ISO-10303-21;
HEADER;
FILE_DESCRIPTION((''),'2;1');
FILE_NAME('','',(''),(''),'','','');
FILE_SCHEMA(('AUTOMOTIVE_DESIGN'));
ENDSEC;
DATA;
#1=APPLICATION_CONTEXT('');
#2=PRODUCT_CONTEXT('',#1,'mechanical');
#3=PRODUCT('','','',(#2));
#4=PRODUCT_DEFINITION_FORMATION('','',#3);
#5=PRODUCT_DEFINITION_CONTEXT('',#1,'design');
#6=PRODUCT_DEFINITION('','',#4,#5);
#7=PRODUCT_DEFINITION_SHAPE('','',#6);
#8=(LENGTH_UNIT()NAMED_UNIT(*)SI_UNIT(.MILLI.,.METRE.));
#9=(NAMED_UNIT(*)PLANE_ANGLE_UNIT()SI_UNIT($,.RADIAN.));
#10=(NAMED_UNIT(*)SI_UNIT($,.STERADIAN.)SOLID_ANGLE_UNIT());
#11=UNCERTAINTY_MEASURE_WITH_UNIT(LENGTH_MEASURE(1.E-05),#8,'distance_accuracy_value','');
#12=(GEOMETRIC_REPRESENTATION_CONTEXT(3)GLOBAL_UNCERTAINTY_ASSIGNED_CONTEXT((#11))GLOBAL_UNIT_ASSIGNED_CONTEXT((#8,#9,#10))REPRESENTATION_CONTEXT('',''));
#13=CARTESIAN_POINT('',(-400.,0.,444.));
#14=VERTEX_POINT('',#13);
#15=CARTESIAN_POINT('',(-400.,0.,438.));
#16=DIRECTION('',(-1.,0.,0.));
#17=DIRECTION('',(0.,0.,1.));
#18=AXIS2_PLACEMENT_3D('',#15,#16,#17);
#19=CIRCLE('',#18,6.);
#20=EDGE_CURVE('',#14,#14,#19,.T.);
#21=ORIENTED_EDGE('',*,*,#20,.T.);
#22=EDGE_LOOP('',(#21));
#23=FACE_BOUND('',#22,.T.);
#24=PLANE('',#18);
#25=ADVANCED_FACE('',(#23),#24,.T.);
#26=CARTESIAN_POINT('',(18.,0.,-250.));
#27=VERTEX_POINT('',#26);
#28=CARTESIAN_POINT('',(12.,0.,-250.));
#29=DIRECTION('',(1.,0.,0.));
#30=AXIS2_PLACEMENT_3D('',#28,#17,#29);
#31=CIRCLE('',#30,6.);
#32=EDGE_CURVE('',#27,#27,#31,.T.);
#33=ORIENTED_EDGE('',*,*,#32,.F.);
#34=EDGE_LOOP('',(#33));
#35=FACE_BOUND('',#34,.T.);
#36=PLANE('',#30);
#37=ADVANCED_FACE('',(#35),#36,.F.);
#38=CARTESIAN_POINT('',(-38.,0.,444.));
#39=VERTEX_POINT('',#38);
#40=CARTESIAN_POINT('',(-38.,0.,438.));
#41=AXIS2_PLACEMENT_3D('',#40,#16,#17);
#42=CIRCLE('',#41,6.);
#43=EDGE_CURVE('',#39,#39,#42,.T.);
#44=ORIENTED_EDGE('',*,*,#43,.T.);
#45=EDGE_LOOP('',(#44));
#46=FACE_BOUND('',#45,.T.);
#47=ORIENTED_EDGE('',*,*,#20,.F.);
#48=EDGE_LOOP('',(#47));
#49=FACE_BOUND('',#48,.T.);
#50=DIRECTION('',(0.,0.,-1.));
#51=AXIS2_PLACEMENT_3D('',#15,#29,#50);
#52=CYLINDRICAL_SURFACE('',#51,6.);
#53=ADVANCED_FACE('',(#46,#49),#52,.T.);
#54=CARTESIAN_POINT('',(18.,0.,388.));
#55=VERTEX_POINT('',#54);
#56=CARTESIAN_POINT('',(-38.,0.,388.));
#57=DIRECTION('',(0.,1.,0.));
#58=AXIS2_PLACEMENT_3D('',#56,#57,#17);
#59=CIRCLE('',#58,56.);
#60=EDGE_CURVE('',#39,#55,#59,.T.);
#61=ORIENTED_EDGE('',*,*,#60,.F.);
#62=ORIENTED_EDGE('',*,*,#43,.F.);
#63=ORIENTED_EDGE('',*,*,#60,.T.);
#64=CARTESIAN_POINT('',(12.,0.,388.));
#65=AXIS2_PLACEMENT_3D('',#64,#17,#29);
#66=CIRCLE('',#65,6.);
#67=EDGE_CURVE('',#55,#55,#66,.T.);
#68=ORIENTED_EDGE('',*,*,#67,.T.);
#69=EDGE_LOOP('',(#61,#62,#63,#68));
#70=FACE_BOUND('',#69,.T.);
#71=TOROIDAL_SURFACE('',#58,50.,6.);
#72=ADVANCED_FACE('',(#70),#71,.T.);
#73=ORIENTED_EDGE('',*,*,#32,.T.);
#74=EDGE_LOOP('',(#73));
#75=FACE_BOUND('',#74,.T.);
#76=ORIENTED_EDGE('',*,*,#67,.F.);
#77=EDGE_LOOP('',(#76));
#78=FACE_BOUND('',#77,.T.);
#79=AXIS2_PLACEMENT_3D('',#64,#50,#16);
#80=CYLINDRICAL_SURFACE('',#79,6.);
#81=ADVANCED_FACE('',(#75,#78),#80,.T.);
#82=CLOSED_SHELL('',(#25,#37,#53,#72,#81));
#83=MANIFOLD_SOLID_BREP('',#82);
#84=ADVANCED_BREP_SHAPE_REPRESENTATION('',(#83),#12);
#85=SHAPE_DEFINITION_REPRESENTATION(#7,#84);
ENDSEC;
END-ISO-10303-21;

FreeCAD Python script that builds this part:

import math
import FreeCAD as App
import Part
import Sketcher

doc = App.newDocument("Part")
params = doc.addObject("Spreadsheet::Sheet", "Params")
for row, (alias, value) in enumerate([
    ("sketch1_diameter", "12 mm"),
    ("sketch2_radius", "50 mm"),
    ("sketch2_width", "362 mm"),
    ("sketch2_height", "638 mm"),
], start=1):
    params.set(f"A{row}", alias)
    params.set(f"B{row}", "=" + value)
    params.setAlias(f"B{row}", alias)

body = doc.addObject("PartDesign::Body", "Body")

# Sketch on XY plane
sketch1 = body.newObject("Sketcher::SketchObject", "Sketch")
sketch1.AttachmentSupport = (doc.getObject("XY_Plane"), [""])
sketch1.MapMode = "FlatFace"
sketch1.addGeometry(Part.Circle(App.Vector(12, 0, 0), App.Vector(0, 0, 1), 6), False)
sketch1.addConstraint([
    Sketcher.Constraint("PointOnObject", 0, 3, -1),
    Sketcher.Constraint("Diameter", 0, 12.0),
    Sketcher.Constraint("DistanceX", -1, 1, 0, 3, 12.0),
])
sketch1.setExpression("Constraints[1]", "Params.sketch1_diameter")

# Sketch on XZ plane
sketch2 = body.newObject("Sketcher::SketchObject", "Sketch001")
sketch2.AttachmentSupport = (doc.getObject("XZ_Plane"), [""])
sketch2.MapMode = "FlatFace"
sketch2.addGeometry([
    Part.LineSegment(App.Vector(12, -250, 0), App.Vector(12, 388, 0)),
    Part.ArcOfCircle(Part.Circle(App.Vector(-38, 388, 0), App.Vector(0, 0, 1), 50), math.radians(0), math.radians(90)),
    Part.LineSegment(App.Vector(-38, 438, 0), App.Vector(-400, 438, 0)),
], False)
sketch2.addConstraint([
    Sketcher.Constraint("Tangent", 0, 2, 1, 1),
    Sketcher.Constraint("Tangent", 1, 2, 2, 1),
    Sketcher.Constraint("Vertical", 0),
    Sketcher.Constraint("Horizontal", 2),
    Sketcher.Constraint("Radius", 1, 50.0),
    Sketcher.Constraint("DistanceX", 2, 2, 2, 1, 362.0),
    Sketcher.Constraint("DistanceY", 0, 1, 0, 2, 638.0),
    Sketcher.Constraint("DistanceX", 1, 3, -1, 1, 38.0),
    Sketcher.Constraint("DistanceY", -1, 1, 1, 3, 388.0),
])
sketch2.setExpression("Constraints[4]", "Params.sketch2_radius")
sketch2.setExpression("Constraints[5]", "Params.sketch2_width")
sketch2.setExpression("Constraints[6]", "Params.sketch2_height")
doc.recompute()

additivepipe = body.newObject("PartDesign::AdditivePipe", "AdditivePipe")
additivepipe.Profile = sketch1
additivepipe.Spine = (sketch2, ["Edge1", "Edge2", "Edge3"])

doc.recompute()
